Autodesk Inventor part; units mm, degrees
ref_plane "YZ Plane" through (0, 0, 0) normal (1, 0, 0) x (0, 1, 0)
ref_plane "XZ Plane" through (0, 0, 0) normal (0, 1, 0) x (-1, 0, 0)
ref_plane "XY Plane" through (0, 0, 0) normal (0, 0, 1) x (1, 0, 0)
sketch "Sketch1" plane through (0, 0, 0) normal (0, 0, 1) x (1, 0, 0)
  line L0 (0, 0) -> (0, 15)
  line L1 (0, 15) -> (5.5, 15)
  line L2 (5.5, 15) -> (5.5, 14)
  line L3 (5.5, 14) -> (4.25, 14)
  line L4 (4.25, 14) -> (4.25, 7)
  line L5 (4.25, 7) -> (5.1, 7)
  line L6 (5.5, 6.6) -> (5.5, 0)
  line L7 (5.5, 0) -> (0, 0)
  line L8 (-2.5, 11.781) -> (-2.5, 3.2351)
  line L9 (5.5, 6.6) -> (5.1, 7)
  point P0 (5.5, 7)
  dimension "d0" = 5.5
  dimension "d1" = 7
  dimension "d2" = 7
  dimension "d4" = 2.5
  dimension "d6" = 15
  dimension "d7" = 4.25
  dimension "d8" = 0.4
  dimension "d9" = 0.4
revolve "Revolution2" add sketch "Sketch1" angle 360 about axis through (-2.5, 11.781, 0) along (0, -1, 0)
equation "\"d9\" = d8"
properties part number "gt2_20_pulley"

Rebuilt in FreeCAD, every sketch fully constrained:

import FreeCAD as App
import Part
import Sketcher
from FreeCAD import Vector
Q = App.Units.Quantity

doc = App.newDocument("Part")
params = doc.addObject("Spreadsheet::Sheet", "Params")
for row, (alias, value) in enumerate([
    ("sketch1_height", "15 mm"),
    ("sketch1_height2", "7 mm"),
    ("sketch1_width", "5.5 mm"),
    ("revolution_angle", "360 deg"),
], start=1):
    params.set(f"A{row}", alias)
    params.set(f"B{row}", "=" + value)
    params.setAlias(f"B{row}", alias)

body = doc.addObject("PartDesign::Body", "Body")

# Sketch on XY plane
sketch1 = doc.addObject("Sketcher::SketchObject", "Sketch")
body.addObject(sketch1)
sketch1.AttachmentSupport = (doc.XY_Plane, [""])
sketch1.MapMode = "FlatFace"
sketch1.addGeometry([
    Part.LineSegment(Vector(0, 15, 0), Vector(0, 0, 0)),  # 0
    Part.LineSegment(Vector(0, 0, 0), Vector(5.5, 0, 0)),  # 1
    Part.LineSegment(Vector(5.5, 0, 0), Vector(5.5, 6.6, 0)),  # 2
    Part.LineSegment(Vector(5.5, 6.6, 0), Vector(5.1, 7, 0)),  # 3
    Part.LineSegment(Vector(5.1, 7, 0), Vector(4.2, 7, 0)),  # 4
    Part.LineSegment(Vector(4.2, 7, 0), Vector(4.2, 14, 0)),  # 5
    Part.LineSegment(Vector(4.2, 14, 0), Vector(5.5, 14, 0)),  # 6
    Part.LineSegment(Vector(5.5, 14, 0), Vector(5.5, 15, 0)),  # 7
    Part.LineSegment(Vector(5.5, 15, 0), Vector(0, 15, 0)),  # 8
], False)
sketch1.addGeometry(Part.LineSegment(Vector(-2.5, 15, 0), Vector(-2.5, 0, 0)), True)  # axis
sketch1.addConstraint([
    Sketcher.Constraint("Coincident", 0, 2, 1, 1),
    Sketcher.Constraint("Coincident", 1, 2, 2, 1),
    Sketcher.Constraint("Coincident", 2, 2, 3, 1),
    Sketcher.Constraint("Coincident", 3, 2, 4, 1),
    Sketcher.Constraint("Coincident", 4, 2, 5, 1),
    Sketcher.Constraint("Coincident", 5, 2, 6, 1),
    Sketcher.Constraint("Coincident", 6, 2, 7, 1),
    Sketcher.Constraint("Coincident", 7, 2, 8, 1),
    Sketcher.Constraint("Coincident", 8, 2, 0, 1),
    Sketcher.Constraint("Vertical", 0),
    Sketcher.Constraint("Horizontal", 1),
    Sketcher.Constraint("Vertical", 2),
    Sketcher.Constraint("Horizontal", 4),
    Sketcher.Constraint("Vertical", 5),
    Sketcher.Constraint("Horizontal", 6),
    Sketcher.Constraint("Vertical", 7),
    Sketcher.Constraint("Horizontal", 8),
    Sketcher.Constraint("Vertical", 9),
    Sketcher.Constraint("Coincident", 0, 2, -1, 1),
    Sketcher.Constraint("PointOnObject", 9, 2, -1),
    Sketcher.Constraint("Horizontal", 8, 2, 9, 1),
    Sketcher.Constraint("Vertical", 2, 2, 6, 2),
    Sketcher.Constraint("DistanceY", 0, 2, 0, 1, Q("15 mm")),
    Sketcher.Constraint("DistanceY", 5, 1, 5, 2, Q("7 mm")),
    Sketcher.Constraint("DistanceX", 1, 1, 1, 2, Q("5.5 mm")),
    Sketcher.Constraint("DistanceY", -1, 1, 3, 2, Q("7 mm")),
    Sketcher.Constraint("DistanceX", 9, 1, -1, 1, Q("2.5 mm")),
    Sketcher.Constraint("DistanceX", 3, 2, 2, 2, Q("0.4 mm")),
    Sketcher.Constraint("DistanceY", 2, 2, 3, 2, Q("0.4 mm")),
    Sketcher.Constraint("DistanceX", -1, 1, 4, 2, Q("4.25 mm")),
])
sketch1.setExpression("Constraints[22]", "Params.sketch1_height")
sketch1.setExpression("Constraints[23]", "Params.sketch1_height2")
sketch1.setExpression("Constraints[24]", "Params.sketch1_width")
revolution = doc.addObject("PartDesign::Revolution", "Revolution")
body.addObject(revolution)
revolution.Profile = sketch1
revolution.ReferenceAxis = (sketch1, ["Axis0"])
revolution.setExpression("Angle", "Params.revolution_angle")

doc.recompute()
